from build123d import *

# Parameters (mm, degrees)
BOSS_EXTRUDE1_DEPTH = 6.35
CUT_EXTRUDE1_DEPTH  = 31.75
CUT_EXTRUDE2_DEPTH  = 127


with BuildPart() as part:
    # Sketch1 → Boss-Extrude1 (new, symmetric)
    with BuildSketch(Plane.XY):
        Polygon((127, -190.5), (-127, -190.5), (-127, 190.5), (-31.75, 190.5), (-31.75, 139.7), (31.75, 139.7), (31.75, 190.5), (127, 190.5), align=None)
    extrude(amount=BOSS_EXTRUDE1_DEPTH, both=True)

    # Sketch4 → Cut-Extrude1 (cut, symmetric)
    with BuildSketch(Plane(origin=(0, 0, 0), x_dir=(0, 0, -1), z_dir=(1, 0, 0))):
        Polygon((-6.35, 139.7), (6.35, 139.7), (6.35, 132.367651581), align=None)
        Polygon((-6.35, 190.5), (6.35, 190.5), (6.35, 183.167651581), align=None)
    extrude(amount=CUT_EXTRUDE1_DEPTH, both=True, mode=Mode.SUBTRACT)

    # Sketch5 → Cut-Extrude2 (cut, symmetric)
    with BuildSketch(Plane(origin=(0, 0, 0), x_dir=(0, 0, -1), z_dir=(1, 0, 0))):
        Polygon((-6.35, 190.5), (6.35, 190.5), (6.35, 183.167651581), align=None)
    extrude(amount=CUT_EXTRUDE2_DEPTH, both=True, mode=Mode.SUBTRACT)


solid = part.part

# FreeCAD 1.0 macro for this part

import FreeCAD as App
import Part
import Sketcher
Q = App.Units.Quantity


def add_polygon(sketch, points):
    """Adds a closed chain of lines whose ends are joined by coincident constraints."""
    first, n = sketch.GeometryCount, len(points)
    for a, b in zip(points, points[1:] + points[:1]):
        sketch.addGeometry(Part.LineSegment(App.Vector(*a, 0), App.Vector(*b, 0)), False)
    for i in range(n):
        sketch.addConstraint(Sketcher.Constraint("Coincident", first + i, 2, first + (i + 1) % n, 1))

doc = App.newDocument("Part")
params = doc.addObject("Spreadsheet::Sheet", "Params")
for row, (alias, value) in enumerate([
    ("sketch1_width", "10 in"),
    ("sketch1_height", "15 in"),
    ("sketch1_height2", "2 in"),
    ("sketch1_width2", "2.5 in"),
    ("pad1_length", "0.5 in"),
    ("sketch2_height", "0.5 in"),
    ("pocket1_length", "2.5 in"),
    ("sketch3_height", "0.5 in"),
    ("pocket2_length", "10 in"),
], start=1):
    params.set(f"A{row}", alias)
    params.set(f"B{row}", "=" + value)
    params.setAlias(f"B{row}", alias)

body = doc.addObject("PartDesign::Body", "Body")

# Sketch on XY plane
sketch1 = body.newObject("Sketcher::SketchObject", "Sketch")
sketch1.AttachmentSupport = (doc.getObject("XY_Plane"), [""])
sketch1.MapMode = "FlatFace"
add_polygon(sketch1, [(-127, -190), (127, -190), (127, 190), (32, 190), (32, 140), (-32, 140), (-32, 190), (-127, 190)])  # lines 0-7
sketch1.addConstraint(Sketcher.Constraint("Horizontal", 0))
sketch1.addConstraint(Sketcher.Constraint("Vertical", 1))
sketch1.addConstraint(Sketcher.Constraint("Horizontal", 2))
sketch1.addConstraint(Sketcher.Constraint("Vertical", 3))
sketch1.addConstraint(Sketcher.Constraint("Horizontal", 4))
sketch1.addConstraint(Sketcher.Constraint("Vertical", 5))
sketch1.addConstraint(Sketcher.Constraint("Horizontal", 6))
sketch1.addConstraint(Sketcher.Constraint("Vertical", 7))
sketch1.addConstraint(Sketcher.Constraint("Symmetric", 0, 2, 6, 2, -1, 1))
sketch1.addConstraint(Sketcher.Constraint("Symmetric", 2, 2, 5, 2, -2))
sketch1.addConstraint(Sketcher.Constraint("DistanceX", 0, 1, 0, 2, Q("10 in")))
sketch1.addConstraint(Sketcher.Constraint("DistanceY", 1, 1, 1, 2, Q("15 in")))
sketch1.addConstraint(Sketcher.Constraint("DistanceY", 3, 2, 3, 1, Q("2 in")))
sketch1.addConstraint(Sketcher.Constraint("DistanceX", 4, 2, 4, 1, Q("2.5 in")))
sketch1.setExpression("Constraints[18]", "Params.sketch1_width")
sketch1.setExpression("Constraints[19]", "Params.sketch1_height")
sketch1.setExpression("Constraints[20]", "Params.sketch1_height2")
sketch1.setExpression("Constraints[21]", "Params.sketch1_width2")
pad1 = body.newObject("PartDesign::Pad", "Pad")
pad1.Profile = sketch1
pad1.setExpression("Length", "Params.pad1_length")
pad1.Midplane = True

# Sketch on YZ plane
sketch2 = body.newObject("Sketcher::SketchObject", "Sketch001")
sketch2.AttachmentSupport = (doc.getObject("YZ_Plane"), [""])
sketch2.MapMode = "FlatFace"
add_polygon(sketch2, [(140, -6), (140, 6), (132, -6)])  # lines 0-2
add_polygon(sketch2, [(190, -6), (190, 6), (183, -6)])  # lines 3-5
sketch2.addConstraint(Sketcher.Constraint("Vertical", 0))
sketch2.addConstraint(Sketcher.Constraint("Horizontal", 2))
sketch2.addConstraint(Sketcher.Constraint("Vertical", 3))
sketch2.addConstraint(Sketcher.Constraint("Horizontal", 5))
sketch2.addConstraint(Sketcher.Constraint("Parallel", 1, 4))
sketch2.addConstraint(Sketcher.Constraint("Horizontal", 0, 2, 3, 2))
sketch2.addConstraint(Sketcher.Constraint("Horizontal", 2, 2, 4, 2))
sketch2.addConstraint(Sketcher.Constraint("DistanceY", 0, 1, 0, 2, Q("0.5 in")))
sketch2.addConstraint(Sketcher.Constraint("Angle", 1, Q("-120 deg")))
sketch2.addConstraint(Sketcher.Constraint("DistanceX", 0, 2, 3, 2, Q("2 in")))
sketch2.addConstraint(Sketcher.Constraint("DistanceX", -1, 1, 0, 2, Q("5.5 in")))
sketch2.addConstraint(Sketcher.Constraint("DistanceY", -1, 1, 0, 2, Q("0.25 in")))
sketch2.setExpression("Constraints[13]", "Params.sketch2_height")
pocket1 = body.newObject("PartDesign::Pocket", "Pocket")
pocket1.Profile = sketch2
pocket1.setExpression("Length", "Params.pocket1_length")
pocket1.Midplane = True

# Sketch on YZ plane
sketch3 = body.newObject("Sketcher::SketchObject", "Sketch002")
sketch3.AttachmentSupport = (doc.getObject("YZ_Plane"), [""])
sketch3.MapMode = "FlatFace"
add_polygon(sketch3, [(190, -6), (190, 6), (183, -6)])  # lines 0-2
sketch3.addConstraint(Sketcher.Constraint("Vertical", 0))
sketch3.addConstraint(Sketcher.Constraint("Horizontal", 2))
sketch3.addConstraint(Sketcher.Constraint("DistanceY", 0, 1, 0, 2, Q("0.5 in")))
sketch3.addConstraint(Sketcher.Constraint("Angle", 1, Q("-120 deg")))
sketch3.addConstraint(Sketcher.Constraint("DistanceX", -1, 1, 0, 2, Q("7.5 in")))
sketch3.addConstraint(Sketcher.Constraint("DistanceY", -1, 1, 0, 2, Q("0.25 in")))
sketch3.setExpression("Constraints[5]", "Params.sketch3_height")
pocket2 = body.newObject("PartDesign::Pocket", "Pocket001")
pocket2.Profile = sketch3
pocket2.setExpression("Length", "Params.pocket2_length")
pocket2.Midplane = True

doc.recompute()
